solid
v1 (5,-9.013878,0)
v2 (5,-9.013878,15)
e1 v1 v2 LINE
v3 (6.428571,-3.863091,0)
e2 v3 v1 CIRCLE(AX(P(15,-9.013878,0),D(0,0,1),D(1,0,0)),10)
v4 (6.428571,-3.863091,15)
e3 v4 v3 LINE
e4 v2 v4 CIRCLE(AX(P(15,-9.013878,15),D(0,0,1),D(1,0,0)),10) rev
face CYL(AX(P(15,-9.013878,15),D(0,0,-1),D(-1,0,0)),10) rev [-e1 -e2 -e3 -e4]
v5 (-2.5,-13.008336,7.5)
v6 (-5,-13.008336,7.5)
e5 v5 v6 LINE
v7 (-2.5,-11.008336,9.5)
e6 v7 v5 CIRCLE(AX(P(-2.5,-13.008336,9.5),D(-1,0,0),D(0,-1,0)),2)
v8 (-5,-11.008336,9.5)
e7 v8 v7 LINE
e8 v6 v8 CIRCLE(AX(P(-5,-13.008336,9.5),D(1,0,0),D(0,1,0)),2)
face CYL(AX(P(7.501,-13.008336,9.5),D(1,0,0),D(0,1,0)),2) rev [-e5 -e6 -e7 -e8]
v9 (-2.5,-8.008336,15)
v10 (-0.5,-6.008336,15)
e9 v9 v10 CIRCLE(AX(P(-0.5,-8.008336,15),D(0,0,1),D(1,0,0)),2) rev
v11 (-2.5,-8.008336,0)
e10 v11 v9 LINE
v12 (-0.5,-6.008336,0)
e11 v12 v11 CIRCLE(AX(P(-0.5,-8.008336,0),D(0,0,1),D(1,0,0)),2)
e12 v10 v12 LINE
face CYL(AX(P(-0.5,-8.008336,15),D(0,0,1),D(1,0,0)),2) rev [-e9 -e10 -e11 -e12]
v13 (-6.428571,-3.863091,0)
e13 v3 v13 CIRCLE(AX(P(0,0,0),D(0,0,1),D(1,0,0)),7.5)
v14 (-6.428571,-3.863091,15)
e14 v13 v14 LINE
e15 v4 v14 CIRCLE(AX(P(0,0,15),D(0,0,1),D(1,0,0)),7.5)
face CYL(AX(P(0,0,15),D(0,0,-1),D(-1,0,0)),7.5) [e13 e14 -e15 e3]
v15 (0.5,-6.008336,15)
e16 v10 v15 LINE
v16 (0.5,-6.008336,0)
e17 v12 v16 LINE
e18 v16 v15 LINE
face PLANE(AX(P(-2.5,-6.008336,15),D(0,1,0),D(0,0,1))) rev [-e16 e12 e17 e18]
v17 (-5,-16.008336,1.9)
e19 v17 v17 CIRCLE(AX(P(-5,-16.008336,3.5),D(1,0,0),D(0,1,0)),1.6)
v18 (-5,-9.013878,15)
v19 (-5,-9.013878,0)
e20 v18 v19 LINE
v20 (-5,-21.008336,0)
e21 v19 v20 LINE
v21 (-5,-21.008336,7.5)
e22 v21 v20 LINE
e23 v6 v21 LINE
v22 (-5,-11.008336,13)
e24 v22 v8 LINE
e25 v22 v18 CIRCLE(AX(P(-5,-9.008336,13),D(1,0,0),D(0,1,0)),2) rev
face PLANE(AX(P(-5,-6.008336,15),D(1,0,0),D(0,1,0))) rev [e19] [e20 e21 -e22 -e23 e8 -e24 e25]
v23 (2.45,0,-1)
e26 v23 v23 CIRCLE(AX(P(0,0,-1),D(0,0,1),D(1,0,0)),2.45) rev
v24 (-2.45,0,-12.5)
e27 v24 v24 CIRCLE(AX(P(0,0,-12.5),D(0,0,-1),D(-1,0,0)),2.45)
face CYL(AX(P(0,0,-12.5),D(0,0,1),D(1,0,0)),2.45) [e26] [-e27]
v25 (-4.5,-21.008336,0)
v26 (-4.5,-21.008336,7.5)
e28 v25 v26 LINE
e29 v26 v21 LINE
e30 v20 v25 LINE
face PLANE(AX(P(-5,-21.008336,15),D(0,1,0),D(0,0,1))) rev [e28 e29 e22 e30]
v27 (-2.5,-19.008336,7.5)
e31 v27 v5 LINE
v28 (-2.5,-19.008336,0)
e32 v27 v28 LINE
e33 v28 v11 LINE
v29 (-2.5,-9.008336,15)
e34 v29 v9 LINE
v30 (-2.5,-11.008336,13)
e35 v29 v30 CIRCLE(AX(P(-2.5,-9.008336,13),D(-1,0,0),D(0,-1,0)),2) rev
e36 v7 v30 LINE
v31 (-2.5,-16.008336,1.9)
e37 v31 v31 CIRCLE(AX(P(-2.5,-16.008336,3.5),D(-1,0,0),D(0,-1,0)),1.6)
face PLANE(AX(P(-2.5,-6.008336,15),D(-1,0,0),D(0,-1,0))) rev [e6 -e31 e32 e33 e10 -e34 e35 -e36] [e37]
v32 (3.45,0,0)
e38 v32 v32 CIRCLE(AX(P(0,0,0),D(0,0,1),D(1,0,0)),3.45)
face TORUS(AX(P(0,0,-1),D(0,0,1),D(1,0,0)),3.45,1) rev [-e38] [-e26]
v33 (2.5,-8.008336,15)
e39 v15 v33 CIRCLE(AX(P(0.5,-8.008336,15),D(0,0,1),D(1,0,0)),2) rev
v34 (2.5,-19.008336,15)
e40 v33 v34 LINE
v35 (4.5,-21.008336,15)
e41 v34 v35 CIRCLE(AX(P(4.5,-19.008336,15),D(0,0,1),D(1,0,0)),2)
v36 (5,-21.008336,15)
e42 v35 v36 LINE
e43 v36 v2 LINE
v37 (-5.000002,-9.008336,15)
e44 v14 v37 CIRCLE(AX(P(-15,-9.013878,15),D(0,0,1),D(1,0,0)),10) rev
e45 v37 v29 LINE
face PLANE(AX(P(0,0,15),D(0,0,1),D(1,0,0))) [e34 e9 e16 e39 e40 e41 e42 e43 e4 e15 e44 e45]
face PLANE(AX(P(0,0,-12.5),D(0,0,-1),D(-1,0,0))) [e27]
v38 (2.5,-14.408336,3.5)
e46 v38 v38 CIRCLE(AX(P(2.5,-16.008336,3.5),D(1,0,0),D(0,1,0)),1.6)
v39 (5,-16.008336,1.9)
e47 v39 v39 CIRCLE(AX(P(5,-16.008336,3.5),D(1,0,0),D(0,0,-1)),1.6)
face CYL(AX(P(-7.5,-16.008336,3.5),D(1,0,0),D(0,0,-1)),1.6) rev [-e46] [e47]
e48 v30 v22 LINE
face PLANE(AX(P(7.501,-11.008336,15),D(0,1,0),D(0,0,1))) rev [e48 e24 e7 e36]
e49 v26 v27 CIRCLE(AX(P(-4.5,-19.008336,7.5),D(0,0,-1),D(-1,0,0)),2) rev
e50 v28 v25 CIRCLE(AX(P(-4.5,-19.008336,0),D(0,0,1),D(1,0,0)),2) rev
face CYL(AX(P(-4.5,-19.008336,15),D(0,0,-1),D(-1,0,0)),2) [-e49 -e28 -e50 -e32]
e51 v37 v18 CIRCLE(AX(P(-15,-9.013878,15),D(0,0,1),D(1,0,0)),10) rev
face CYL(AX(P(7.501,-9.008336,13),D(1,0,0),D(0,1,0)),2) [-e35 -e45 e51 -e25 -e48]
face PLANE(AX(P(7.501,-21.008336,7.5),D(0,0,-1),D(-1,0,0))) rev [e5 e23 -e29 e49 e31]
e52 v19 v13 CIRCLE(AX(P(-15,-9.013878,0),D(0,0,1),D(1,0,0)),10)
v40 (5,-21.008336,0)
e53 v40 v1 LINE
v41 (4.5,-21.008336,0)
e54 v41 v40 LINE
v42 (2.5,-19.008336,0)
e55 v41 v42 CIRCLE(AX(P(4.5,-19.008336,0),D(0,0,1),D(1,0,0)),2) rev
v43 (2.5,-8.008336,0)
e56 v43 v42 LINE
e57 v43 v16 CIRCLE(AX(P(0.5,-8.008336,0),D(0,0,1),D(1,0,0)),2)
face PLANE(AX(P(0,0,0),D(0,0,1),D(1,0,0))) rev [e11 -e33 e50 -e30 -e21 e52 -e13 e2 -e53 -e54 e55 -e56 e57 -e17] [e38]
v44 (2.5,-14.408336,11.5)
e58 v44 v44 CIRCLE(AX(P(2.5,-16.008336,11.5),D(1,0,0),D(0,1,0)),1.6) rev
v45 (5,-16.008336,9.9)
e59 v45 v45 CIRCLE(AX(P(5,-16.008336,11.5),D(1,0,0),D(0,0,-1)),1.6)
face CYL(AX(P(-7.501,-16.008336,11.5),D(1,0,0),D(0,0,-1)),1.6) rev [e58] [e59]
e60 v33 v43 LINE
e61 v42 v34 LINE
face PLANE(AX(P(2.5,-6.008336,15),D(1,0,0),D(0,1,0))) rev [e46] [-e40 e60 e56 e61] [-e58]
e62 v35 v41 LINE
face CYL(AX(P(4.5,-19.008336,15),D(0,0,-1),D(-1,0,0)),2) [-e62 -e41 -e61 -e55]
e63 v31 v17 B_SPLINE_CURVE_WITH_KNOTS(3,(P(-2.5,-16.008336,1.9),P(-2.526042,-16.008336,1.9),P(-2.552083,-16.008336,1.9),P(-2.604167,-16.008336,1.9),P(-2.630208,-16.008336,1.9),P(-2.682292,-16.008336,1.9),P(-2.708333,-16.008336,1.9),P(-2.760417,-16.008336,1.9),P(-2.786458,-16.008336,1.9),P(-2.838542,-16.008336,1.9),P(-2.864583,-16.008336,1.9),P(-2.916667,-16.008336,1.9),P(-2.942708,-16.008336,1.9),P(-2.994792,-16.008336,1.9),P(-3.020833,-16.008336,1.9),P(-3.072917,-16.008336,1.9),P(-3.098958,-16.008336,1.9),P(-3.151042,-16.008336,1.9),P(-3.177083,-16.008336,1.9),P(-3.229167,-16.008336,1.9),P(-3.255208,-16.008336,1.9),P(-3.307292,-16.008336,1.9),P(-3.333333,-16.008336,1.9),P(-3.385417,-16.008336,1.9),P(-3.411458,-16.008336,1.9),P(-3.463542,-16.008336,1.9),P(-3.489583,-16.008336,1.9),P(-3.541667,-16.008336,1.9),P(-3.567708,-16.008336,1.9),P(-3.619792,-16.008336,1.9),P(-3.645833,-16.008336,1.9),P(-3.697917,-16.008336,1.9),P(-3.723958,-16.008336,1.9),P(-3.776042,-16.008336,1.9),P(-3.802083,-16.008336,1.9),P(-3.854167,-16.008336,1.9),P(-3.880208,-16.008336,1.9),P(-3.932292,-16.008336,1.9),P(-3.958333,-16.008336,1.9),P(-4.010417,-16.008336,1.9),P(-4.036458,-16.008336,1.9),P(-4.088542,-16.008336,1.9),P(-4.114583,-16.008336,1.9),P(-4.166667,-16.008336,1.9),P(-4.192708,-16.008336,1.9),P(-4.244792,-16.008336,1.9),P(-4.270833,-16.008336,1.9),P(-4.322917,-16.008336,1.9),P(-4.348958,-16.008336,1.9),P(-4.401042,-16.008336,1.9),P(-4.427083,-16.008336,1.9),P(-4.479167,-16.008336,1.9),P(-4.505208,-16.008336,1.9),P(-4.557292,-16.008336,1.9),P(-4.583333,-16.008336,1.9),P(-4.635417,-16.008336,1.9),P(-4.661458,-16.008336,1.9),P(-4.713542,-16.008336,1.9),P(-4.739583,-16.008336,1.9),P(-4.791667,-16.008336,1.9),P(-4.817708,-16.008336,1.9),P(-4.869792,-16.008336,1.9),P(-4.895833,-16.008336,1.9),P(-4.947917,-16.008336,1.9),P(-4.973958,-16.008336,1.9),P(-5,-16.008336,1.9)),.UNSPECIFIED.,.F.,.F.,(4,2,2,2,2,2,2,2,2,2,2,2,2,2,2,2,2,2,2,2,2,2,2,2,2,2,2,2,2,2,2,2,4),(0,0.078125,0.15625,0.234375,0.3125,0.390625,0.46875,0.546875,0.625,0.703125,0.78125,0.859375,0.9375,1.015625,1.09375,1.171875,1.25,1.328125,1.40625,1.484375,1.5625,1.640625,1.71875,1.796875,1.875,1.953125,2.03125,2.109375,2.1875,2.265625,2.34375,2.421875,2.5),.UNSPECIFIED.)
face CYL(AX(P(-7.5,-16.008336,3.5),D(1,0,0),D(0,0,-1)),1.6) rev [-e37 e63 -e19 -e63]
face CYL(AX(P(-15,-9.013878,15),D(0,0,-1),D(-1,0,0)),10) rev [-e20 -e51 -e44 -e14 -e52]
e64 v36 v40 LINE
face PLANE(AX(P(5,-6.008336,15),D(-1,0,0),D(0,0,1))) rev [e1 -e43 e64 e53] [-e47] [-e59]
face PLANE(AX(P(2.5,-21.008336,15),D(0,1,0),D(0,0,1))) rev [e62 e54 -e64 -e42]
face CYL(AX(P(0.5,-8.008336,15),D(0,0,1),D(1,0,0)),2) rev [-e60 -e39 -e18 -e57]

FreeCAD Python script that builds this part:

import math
import FreeCAD as App
import Part
import Sketcher


def edges_at(feature, points):
    """Names of the edges that pass closest to the given points."""
    edges = feature.Shape.Edges
    near = lambda p: min(range(len(edges)), key=lambda i: edges[i].distToShape(Part.Vertex(*p))[0])
    return sorted({f"Edge{near(p) + 1}" for p in points})


def add_polygon(sketch, points):
    """Adds a closed chain of lines whose ends are joined by coincident constraints."""
    first, n = sketch.GeometryCount, len(points)
    for a, b in zip(points, points[1:] + points[:1]):
        sketch.addGeometry(Part.LineSegment(App.Vector(*a, 0), App.Vector(*b, 0)), False)
    for i in range(n):
        sketch.addConstraint(Sketcher.Constraint("Coincident", first + i, 2, first + (i + 1) % n, 1))

doc = App.newDocument("Part")
params = doc.addObject("Spreadsheet::Sheet", "Params")
for row, (alias, value) in enumerate([
    ("sketch1_radius", "7.5 mm"),
    ("sketch1_width", "5 mm"),
    ("sketch1_height", "15 mm"),
    ("sketch1_width2", "2.5 mm"),
    ("pad1_length", "15 mm"),
    ("sketch2_diameter", "4.9 mm"),
    ("pad2_length", "12.5 mm"),
    ("fillet_radius", "10 mm"),
    ("sketch3_diameter", "3.2 mm"),
    ("sketch4_width", "10 mm"),
    ("sketch4_height", "7.5 mm"),
    ("sketch5_diameter", "3.2 mm"),
    ("fillet2_radius", "1 mm"),
    ("fillet3_radius", "2 mm"),
], start=1):
    params.set(f"A{row}", alias)
    params.set(f"B{row}", "=" + value)
    params.setAlias(f"B{row}", alias)

body = doc.addObject("PartDesign::Body", "Body")

# Sketch on XY plane
sketch1 = doc.addObject("Sketcher::SketchObject", "Sketch")
body.addObject(sketch1)
sketch1.AttachmentSupport = (doc.XY_Plane, [""])
sketch1.MapMode = "FlatFace"
sketch1.addGeometry([
    Part.LineSegment(App.Vector(-2.5, -21, 0), App.Vector(-2.5, -6, 0)),  # 0
    Part.LineSegment(App.Vector(-2.5, -6, 0), App.Vector(2.5, -6, 0)),  # 1
    Part.LineSegment(App.Vector(2.5, -6, 0), App.Vector(2.5, -21, 0)),  # 2
    Part.LineSegment(App.Vector(2.5, -21, 0), App.Vector(5, -21, 0)),  # 3
    Part.LineSegment(App.Vector(5, -21, 0), App.Vector(5, -5.6, 0)),  # 4
    Part.ArcOfCircle(Part.Circle(App.Vector(0, 0, 0), App.Vector(0, 0, 1), 7.5), math.radians(-48), math.radians(228)),  # 5
    Part.LineSegment(App.Vector(-5, -5.6, 0), App.Vector(-5, -21, 0)),  # 6
    Part.LineSegment(App.Vector(-5, -21, 0), App.Vector(-2.5, -21, 0)),  # 7
], False)
sketch1.addConstraint([
    Sketcher.Constraint("Coincident", 0, 2, 1, 1),
    Sketcher.Constraint("Coincident", 1, 2, 2, 1),
    Sketcher.Constraint("Coincident", 2, 2, 3, 1),
    Sketcher.Constraint("Coincident", 3, 2, 4, 1),
    Sketcher.Constraint("Coincident", 4, 2, 5, 1),
    Sketcher.Constraint("Coincident", 5, 2, 6, 1),
    Sketcher.Constraint("Coincident", 6, 2, 7, 1),
    Sketcher.Constraint("Coincident", 7, 2, 0, 1),
    Sketcher.Constraint("Vertical", 0),
    Sketcher.Constraint("Horizontal", 1),
    Sketcher.Constraint("Vertical", 2),
    Sketcher.Constraint("Horizontal", 3),
    Sketcher.Constraint("Vertical", 4),
    Sketcher.Constraint("Vertical", 6),
    Sketcher.Constraint("Horizontal", 7),
    Sketcher.Constraint("Coincident", 5, 3, -1, 1),
    Sketcher.Constraint("Symmetric", 3, 2, 6, 2, -2),
    Sketcher.Constraint("Equal", 3, 7),
    Sketcher.Constraint("Radius", 5, 7.5),
    Sketcher.Constraint("DistanceX", 1, 1, 1, 2, 5.0),
    Sketcher.Constraint("DistanceY", 0, 1, 0, 2, 15.0),
    Sketcher.Constraint("DistanceX", 3, 1, 3, 2, 2.5),
    Sketcher.Constraint("DistanceY", 4, 1, 4, 2, 15.418166),
])
sketch1.setExpression("Constraints[18]", "Params.sketch1_radius")
sketch1.setExpression("Constraints[19]", "Params.sketch1_width")
sketch1.setExpression("Constraints[20]", "Params.sketch1_height")
sketch1.setExpression("Constraints[21]", "Params.sketch1_width2")
pad1 = doc.addObject("PartDesign::Pad", "Pad")
body.addObject(pad1)
pad1.Profile = sketch1
pad1.setExpression("Length", "Params.pad1_length")

# Sketch on XY plane
sketch2 = doc.addObject("Sketcher::SketchObject", "Sketch001")
body.addObject(sketch2)
sketch2.AttachmentSupport = (doc.XY_Plane, [""])
sketch2.MapMode = "FlatFace"
sketch2.addGeometry(Part.Circle(App.Vector(0, 0, 0), App.Vector(0, 0, 1), 2.5), False)
sketch2.addConstraint([
    Sketcher.Constraint("Coincident", 0, 3, -1, 1),
    Sketcher.Constraint("Diameter", 0, 4.9),
])
sketch2.setExpression("Constraints[1]", "Params.sketch2_diameter")
pad2 = doc.addObject("PartDesign::Pad", "Pad001")
body.addObject(pad2)
pad2.Profile = sketch2
pad2.setExpression("Length", "Params.pad2_length")
pad2.Reversed = True
doc.recompute()

fillet = doc.addObject("PartDesign::Fillet", "Fillet")
body.addObject(fillet)
fillet.Base = (pad2, edges_at(pad2, [(-5, -5.59, 7.5), (5, -5.59, 7.5)]))
fillet.setExpression("Radius", "Params.fillet_radius")

# Sketch on YZ plane
sketch3 = doc.addObject("Sketcher::SketchObject", "Sketch002")
body.addObject(sketch3)
sketch3.AttachmentSupport = (doc.YZ_Plane, [""])
sketch3.MapMode = "FlatFace"
sketch3.AttachmentOffset = App.Placement(App.Vector(0, 0, 5), App.Rotation())
sketch3.addGeometry(Part.Circle(App.Vector(-16, 3.5, 0), App.Vector(0, 0, 1), 1.6), False)
sketch3.addConstraint([
    Sketcher.Constraint("Diameter", 0, 3.2),
    Sketcher.Constraint("DistanceY", -1, 1, 0, 3, 3.5),
    Sketcher.Constraint("DistanceX", 0, 3, -1, 1, 16.008336),
])
sketch3.setExpression("Constraints[0]", "Params.sketch3_diameter")
pocket1 = doc.addObject("PartDesign::Pocket", "Pocket")
body.addObject(pocket1)
pocket1.Profile = sketch3
pocket1.Type = "ThroughAll"

# Sketch on YZ plane
sketch4 = doc.addObject("Sketcher::SketchObject", "Sketch003")
body.addObject(sketch4)
sketch4.AttachmentSupport = (doc.YZ_Plane, [""])
sketch4.MapMode = "FlatFace"
sketch4.AttachmentOffset = App.Placement(App.Vector(0, 0, -5), App.Rotation())
add_polygon(sketch4, [(-11, 8), (-21, 8), (-21, 15), (-11, 15)])  # lines 0-3
sketch4.addConstraint([
    Sketcher.Constraint("Horizontal", 0),
    Sketcher.Constraint("Vertical", 1),
    Sketcher.Constraint("Horizontal", 2),
    Sketcher.Constraint("Vertical", 3),
    Sketcher.Constraint("DistanceX", 0, 2, 0, 1, 10.0),
    Sketcher.Constraint("DistanceY", 1, 1, 1, 2, 7.5),
    Sketcher.Constraint("DistanceY", -1, 1, 1, 2, 15.0),
    Sketcher.Constraint("DistanceX", 0, 2, -1, 1, 21.008336),
])
sketch4.setExpression("Constraints[8]", "Params.sketch4_width")
sketch4.setExpression("Constraints[9]", "Params.sketch4_height")
pocket2 = doc.addObject("PartDesign::Pocket", "Pocket001")
body.addObject(pocket2)
pocket2.Profile = sketch4
pocket2.Type = "UpToFirst"
pocket2.Reversed = True

# Sketch on YZ plane
sketch5 = doc.addObject("Sketcher::SketchObject", "Sketch004")
body.addObject(sketch5)
sketch5.AttachmentSupport = (doc.YZ_Plane, [""])
sketch5.MapMode = "FlatFace"
sketch5.AttachmentOffset = App.Placement(App.Vector(0, 0, 5), App.Rotation())
sketch5.addGeometry(Part.Circle(App.Vector(-16, 11.5, 0), App.Vector(0, 0, 1), 1.6), False)
sketch5.addConstraint([
    Sketcher.Constraint("Diameter", 0, 3.2),
    Sketcher.Constraint("DistanceY", -1, 1, 0, 3, 11.5),
    Sketcher.Constraint("DistanceX", 0, 3, -1, 1, 16.008336),
])
sketch5.setExpression("Constraints[0]", "Params.sketch5_diameter")
pocket3 = doc.addObject("PartDesign::Pocket", "Pocket002")
body.addObject(pocket3)
pocket3.Profile = sketch5
pocket3.Type = "UpToFirst"
doc.recompute()

fillet2 = doc.addObject("PartDesign::Fillet", "Fillet001")
body.addObject(fillet2)
fillet2.Base = (pocket3, edges_at(pocket3, [(2.45, 0, 0)]))
fillet2.setExpression("Radius", "Params.fillet2_radius")
doc.recompute()

fillet3 = doc.addObject("PartDesign::Fillet", "Fillet002")
body.addObject(fillet3)
fillet3.Base = (fillet2, edges_at(fillet2, [
    (2.5, -6.008, 7.5),
    (-2.5, -6.008, 7.5),
    (-3.75, -11.008, 7.5),
    (-3.75, -11.008, 15),
    (-2.5, -21.008, 3.75),
    (2.5, -21.008, 7.5),
]))
fillet3.setExpression("Radius", "Params.fillet3_radius")

doc.recompute()
